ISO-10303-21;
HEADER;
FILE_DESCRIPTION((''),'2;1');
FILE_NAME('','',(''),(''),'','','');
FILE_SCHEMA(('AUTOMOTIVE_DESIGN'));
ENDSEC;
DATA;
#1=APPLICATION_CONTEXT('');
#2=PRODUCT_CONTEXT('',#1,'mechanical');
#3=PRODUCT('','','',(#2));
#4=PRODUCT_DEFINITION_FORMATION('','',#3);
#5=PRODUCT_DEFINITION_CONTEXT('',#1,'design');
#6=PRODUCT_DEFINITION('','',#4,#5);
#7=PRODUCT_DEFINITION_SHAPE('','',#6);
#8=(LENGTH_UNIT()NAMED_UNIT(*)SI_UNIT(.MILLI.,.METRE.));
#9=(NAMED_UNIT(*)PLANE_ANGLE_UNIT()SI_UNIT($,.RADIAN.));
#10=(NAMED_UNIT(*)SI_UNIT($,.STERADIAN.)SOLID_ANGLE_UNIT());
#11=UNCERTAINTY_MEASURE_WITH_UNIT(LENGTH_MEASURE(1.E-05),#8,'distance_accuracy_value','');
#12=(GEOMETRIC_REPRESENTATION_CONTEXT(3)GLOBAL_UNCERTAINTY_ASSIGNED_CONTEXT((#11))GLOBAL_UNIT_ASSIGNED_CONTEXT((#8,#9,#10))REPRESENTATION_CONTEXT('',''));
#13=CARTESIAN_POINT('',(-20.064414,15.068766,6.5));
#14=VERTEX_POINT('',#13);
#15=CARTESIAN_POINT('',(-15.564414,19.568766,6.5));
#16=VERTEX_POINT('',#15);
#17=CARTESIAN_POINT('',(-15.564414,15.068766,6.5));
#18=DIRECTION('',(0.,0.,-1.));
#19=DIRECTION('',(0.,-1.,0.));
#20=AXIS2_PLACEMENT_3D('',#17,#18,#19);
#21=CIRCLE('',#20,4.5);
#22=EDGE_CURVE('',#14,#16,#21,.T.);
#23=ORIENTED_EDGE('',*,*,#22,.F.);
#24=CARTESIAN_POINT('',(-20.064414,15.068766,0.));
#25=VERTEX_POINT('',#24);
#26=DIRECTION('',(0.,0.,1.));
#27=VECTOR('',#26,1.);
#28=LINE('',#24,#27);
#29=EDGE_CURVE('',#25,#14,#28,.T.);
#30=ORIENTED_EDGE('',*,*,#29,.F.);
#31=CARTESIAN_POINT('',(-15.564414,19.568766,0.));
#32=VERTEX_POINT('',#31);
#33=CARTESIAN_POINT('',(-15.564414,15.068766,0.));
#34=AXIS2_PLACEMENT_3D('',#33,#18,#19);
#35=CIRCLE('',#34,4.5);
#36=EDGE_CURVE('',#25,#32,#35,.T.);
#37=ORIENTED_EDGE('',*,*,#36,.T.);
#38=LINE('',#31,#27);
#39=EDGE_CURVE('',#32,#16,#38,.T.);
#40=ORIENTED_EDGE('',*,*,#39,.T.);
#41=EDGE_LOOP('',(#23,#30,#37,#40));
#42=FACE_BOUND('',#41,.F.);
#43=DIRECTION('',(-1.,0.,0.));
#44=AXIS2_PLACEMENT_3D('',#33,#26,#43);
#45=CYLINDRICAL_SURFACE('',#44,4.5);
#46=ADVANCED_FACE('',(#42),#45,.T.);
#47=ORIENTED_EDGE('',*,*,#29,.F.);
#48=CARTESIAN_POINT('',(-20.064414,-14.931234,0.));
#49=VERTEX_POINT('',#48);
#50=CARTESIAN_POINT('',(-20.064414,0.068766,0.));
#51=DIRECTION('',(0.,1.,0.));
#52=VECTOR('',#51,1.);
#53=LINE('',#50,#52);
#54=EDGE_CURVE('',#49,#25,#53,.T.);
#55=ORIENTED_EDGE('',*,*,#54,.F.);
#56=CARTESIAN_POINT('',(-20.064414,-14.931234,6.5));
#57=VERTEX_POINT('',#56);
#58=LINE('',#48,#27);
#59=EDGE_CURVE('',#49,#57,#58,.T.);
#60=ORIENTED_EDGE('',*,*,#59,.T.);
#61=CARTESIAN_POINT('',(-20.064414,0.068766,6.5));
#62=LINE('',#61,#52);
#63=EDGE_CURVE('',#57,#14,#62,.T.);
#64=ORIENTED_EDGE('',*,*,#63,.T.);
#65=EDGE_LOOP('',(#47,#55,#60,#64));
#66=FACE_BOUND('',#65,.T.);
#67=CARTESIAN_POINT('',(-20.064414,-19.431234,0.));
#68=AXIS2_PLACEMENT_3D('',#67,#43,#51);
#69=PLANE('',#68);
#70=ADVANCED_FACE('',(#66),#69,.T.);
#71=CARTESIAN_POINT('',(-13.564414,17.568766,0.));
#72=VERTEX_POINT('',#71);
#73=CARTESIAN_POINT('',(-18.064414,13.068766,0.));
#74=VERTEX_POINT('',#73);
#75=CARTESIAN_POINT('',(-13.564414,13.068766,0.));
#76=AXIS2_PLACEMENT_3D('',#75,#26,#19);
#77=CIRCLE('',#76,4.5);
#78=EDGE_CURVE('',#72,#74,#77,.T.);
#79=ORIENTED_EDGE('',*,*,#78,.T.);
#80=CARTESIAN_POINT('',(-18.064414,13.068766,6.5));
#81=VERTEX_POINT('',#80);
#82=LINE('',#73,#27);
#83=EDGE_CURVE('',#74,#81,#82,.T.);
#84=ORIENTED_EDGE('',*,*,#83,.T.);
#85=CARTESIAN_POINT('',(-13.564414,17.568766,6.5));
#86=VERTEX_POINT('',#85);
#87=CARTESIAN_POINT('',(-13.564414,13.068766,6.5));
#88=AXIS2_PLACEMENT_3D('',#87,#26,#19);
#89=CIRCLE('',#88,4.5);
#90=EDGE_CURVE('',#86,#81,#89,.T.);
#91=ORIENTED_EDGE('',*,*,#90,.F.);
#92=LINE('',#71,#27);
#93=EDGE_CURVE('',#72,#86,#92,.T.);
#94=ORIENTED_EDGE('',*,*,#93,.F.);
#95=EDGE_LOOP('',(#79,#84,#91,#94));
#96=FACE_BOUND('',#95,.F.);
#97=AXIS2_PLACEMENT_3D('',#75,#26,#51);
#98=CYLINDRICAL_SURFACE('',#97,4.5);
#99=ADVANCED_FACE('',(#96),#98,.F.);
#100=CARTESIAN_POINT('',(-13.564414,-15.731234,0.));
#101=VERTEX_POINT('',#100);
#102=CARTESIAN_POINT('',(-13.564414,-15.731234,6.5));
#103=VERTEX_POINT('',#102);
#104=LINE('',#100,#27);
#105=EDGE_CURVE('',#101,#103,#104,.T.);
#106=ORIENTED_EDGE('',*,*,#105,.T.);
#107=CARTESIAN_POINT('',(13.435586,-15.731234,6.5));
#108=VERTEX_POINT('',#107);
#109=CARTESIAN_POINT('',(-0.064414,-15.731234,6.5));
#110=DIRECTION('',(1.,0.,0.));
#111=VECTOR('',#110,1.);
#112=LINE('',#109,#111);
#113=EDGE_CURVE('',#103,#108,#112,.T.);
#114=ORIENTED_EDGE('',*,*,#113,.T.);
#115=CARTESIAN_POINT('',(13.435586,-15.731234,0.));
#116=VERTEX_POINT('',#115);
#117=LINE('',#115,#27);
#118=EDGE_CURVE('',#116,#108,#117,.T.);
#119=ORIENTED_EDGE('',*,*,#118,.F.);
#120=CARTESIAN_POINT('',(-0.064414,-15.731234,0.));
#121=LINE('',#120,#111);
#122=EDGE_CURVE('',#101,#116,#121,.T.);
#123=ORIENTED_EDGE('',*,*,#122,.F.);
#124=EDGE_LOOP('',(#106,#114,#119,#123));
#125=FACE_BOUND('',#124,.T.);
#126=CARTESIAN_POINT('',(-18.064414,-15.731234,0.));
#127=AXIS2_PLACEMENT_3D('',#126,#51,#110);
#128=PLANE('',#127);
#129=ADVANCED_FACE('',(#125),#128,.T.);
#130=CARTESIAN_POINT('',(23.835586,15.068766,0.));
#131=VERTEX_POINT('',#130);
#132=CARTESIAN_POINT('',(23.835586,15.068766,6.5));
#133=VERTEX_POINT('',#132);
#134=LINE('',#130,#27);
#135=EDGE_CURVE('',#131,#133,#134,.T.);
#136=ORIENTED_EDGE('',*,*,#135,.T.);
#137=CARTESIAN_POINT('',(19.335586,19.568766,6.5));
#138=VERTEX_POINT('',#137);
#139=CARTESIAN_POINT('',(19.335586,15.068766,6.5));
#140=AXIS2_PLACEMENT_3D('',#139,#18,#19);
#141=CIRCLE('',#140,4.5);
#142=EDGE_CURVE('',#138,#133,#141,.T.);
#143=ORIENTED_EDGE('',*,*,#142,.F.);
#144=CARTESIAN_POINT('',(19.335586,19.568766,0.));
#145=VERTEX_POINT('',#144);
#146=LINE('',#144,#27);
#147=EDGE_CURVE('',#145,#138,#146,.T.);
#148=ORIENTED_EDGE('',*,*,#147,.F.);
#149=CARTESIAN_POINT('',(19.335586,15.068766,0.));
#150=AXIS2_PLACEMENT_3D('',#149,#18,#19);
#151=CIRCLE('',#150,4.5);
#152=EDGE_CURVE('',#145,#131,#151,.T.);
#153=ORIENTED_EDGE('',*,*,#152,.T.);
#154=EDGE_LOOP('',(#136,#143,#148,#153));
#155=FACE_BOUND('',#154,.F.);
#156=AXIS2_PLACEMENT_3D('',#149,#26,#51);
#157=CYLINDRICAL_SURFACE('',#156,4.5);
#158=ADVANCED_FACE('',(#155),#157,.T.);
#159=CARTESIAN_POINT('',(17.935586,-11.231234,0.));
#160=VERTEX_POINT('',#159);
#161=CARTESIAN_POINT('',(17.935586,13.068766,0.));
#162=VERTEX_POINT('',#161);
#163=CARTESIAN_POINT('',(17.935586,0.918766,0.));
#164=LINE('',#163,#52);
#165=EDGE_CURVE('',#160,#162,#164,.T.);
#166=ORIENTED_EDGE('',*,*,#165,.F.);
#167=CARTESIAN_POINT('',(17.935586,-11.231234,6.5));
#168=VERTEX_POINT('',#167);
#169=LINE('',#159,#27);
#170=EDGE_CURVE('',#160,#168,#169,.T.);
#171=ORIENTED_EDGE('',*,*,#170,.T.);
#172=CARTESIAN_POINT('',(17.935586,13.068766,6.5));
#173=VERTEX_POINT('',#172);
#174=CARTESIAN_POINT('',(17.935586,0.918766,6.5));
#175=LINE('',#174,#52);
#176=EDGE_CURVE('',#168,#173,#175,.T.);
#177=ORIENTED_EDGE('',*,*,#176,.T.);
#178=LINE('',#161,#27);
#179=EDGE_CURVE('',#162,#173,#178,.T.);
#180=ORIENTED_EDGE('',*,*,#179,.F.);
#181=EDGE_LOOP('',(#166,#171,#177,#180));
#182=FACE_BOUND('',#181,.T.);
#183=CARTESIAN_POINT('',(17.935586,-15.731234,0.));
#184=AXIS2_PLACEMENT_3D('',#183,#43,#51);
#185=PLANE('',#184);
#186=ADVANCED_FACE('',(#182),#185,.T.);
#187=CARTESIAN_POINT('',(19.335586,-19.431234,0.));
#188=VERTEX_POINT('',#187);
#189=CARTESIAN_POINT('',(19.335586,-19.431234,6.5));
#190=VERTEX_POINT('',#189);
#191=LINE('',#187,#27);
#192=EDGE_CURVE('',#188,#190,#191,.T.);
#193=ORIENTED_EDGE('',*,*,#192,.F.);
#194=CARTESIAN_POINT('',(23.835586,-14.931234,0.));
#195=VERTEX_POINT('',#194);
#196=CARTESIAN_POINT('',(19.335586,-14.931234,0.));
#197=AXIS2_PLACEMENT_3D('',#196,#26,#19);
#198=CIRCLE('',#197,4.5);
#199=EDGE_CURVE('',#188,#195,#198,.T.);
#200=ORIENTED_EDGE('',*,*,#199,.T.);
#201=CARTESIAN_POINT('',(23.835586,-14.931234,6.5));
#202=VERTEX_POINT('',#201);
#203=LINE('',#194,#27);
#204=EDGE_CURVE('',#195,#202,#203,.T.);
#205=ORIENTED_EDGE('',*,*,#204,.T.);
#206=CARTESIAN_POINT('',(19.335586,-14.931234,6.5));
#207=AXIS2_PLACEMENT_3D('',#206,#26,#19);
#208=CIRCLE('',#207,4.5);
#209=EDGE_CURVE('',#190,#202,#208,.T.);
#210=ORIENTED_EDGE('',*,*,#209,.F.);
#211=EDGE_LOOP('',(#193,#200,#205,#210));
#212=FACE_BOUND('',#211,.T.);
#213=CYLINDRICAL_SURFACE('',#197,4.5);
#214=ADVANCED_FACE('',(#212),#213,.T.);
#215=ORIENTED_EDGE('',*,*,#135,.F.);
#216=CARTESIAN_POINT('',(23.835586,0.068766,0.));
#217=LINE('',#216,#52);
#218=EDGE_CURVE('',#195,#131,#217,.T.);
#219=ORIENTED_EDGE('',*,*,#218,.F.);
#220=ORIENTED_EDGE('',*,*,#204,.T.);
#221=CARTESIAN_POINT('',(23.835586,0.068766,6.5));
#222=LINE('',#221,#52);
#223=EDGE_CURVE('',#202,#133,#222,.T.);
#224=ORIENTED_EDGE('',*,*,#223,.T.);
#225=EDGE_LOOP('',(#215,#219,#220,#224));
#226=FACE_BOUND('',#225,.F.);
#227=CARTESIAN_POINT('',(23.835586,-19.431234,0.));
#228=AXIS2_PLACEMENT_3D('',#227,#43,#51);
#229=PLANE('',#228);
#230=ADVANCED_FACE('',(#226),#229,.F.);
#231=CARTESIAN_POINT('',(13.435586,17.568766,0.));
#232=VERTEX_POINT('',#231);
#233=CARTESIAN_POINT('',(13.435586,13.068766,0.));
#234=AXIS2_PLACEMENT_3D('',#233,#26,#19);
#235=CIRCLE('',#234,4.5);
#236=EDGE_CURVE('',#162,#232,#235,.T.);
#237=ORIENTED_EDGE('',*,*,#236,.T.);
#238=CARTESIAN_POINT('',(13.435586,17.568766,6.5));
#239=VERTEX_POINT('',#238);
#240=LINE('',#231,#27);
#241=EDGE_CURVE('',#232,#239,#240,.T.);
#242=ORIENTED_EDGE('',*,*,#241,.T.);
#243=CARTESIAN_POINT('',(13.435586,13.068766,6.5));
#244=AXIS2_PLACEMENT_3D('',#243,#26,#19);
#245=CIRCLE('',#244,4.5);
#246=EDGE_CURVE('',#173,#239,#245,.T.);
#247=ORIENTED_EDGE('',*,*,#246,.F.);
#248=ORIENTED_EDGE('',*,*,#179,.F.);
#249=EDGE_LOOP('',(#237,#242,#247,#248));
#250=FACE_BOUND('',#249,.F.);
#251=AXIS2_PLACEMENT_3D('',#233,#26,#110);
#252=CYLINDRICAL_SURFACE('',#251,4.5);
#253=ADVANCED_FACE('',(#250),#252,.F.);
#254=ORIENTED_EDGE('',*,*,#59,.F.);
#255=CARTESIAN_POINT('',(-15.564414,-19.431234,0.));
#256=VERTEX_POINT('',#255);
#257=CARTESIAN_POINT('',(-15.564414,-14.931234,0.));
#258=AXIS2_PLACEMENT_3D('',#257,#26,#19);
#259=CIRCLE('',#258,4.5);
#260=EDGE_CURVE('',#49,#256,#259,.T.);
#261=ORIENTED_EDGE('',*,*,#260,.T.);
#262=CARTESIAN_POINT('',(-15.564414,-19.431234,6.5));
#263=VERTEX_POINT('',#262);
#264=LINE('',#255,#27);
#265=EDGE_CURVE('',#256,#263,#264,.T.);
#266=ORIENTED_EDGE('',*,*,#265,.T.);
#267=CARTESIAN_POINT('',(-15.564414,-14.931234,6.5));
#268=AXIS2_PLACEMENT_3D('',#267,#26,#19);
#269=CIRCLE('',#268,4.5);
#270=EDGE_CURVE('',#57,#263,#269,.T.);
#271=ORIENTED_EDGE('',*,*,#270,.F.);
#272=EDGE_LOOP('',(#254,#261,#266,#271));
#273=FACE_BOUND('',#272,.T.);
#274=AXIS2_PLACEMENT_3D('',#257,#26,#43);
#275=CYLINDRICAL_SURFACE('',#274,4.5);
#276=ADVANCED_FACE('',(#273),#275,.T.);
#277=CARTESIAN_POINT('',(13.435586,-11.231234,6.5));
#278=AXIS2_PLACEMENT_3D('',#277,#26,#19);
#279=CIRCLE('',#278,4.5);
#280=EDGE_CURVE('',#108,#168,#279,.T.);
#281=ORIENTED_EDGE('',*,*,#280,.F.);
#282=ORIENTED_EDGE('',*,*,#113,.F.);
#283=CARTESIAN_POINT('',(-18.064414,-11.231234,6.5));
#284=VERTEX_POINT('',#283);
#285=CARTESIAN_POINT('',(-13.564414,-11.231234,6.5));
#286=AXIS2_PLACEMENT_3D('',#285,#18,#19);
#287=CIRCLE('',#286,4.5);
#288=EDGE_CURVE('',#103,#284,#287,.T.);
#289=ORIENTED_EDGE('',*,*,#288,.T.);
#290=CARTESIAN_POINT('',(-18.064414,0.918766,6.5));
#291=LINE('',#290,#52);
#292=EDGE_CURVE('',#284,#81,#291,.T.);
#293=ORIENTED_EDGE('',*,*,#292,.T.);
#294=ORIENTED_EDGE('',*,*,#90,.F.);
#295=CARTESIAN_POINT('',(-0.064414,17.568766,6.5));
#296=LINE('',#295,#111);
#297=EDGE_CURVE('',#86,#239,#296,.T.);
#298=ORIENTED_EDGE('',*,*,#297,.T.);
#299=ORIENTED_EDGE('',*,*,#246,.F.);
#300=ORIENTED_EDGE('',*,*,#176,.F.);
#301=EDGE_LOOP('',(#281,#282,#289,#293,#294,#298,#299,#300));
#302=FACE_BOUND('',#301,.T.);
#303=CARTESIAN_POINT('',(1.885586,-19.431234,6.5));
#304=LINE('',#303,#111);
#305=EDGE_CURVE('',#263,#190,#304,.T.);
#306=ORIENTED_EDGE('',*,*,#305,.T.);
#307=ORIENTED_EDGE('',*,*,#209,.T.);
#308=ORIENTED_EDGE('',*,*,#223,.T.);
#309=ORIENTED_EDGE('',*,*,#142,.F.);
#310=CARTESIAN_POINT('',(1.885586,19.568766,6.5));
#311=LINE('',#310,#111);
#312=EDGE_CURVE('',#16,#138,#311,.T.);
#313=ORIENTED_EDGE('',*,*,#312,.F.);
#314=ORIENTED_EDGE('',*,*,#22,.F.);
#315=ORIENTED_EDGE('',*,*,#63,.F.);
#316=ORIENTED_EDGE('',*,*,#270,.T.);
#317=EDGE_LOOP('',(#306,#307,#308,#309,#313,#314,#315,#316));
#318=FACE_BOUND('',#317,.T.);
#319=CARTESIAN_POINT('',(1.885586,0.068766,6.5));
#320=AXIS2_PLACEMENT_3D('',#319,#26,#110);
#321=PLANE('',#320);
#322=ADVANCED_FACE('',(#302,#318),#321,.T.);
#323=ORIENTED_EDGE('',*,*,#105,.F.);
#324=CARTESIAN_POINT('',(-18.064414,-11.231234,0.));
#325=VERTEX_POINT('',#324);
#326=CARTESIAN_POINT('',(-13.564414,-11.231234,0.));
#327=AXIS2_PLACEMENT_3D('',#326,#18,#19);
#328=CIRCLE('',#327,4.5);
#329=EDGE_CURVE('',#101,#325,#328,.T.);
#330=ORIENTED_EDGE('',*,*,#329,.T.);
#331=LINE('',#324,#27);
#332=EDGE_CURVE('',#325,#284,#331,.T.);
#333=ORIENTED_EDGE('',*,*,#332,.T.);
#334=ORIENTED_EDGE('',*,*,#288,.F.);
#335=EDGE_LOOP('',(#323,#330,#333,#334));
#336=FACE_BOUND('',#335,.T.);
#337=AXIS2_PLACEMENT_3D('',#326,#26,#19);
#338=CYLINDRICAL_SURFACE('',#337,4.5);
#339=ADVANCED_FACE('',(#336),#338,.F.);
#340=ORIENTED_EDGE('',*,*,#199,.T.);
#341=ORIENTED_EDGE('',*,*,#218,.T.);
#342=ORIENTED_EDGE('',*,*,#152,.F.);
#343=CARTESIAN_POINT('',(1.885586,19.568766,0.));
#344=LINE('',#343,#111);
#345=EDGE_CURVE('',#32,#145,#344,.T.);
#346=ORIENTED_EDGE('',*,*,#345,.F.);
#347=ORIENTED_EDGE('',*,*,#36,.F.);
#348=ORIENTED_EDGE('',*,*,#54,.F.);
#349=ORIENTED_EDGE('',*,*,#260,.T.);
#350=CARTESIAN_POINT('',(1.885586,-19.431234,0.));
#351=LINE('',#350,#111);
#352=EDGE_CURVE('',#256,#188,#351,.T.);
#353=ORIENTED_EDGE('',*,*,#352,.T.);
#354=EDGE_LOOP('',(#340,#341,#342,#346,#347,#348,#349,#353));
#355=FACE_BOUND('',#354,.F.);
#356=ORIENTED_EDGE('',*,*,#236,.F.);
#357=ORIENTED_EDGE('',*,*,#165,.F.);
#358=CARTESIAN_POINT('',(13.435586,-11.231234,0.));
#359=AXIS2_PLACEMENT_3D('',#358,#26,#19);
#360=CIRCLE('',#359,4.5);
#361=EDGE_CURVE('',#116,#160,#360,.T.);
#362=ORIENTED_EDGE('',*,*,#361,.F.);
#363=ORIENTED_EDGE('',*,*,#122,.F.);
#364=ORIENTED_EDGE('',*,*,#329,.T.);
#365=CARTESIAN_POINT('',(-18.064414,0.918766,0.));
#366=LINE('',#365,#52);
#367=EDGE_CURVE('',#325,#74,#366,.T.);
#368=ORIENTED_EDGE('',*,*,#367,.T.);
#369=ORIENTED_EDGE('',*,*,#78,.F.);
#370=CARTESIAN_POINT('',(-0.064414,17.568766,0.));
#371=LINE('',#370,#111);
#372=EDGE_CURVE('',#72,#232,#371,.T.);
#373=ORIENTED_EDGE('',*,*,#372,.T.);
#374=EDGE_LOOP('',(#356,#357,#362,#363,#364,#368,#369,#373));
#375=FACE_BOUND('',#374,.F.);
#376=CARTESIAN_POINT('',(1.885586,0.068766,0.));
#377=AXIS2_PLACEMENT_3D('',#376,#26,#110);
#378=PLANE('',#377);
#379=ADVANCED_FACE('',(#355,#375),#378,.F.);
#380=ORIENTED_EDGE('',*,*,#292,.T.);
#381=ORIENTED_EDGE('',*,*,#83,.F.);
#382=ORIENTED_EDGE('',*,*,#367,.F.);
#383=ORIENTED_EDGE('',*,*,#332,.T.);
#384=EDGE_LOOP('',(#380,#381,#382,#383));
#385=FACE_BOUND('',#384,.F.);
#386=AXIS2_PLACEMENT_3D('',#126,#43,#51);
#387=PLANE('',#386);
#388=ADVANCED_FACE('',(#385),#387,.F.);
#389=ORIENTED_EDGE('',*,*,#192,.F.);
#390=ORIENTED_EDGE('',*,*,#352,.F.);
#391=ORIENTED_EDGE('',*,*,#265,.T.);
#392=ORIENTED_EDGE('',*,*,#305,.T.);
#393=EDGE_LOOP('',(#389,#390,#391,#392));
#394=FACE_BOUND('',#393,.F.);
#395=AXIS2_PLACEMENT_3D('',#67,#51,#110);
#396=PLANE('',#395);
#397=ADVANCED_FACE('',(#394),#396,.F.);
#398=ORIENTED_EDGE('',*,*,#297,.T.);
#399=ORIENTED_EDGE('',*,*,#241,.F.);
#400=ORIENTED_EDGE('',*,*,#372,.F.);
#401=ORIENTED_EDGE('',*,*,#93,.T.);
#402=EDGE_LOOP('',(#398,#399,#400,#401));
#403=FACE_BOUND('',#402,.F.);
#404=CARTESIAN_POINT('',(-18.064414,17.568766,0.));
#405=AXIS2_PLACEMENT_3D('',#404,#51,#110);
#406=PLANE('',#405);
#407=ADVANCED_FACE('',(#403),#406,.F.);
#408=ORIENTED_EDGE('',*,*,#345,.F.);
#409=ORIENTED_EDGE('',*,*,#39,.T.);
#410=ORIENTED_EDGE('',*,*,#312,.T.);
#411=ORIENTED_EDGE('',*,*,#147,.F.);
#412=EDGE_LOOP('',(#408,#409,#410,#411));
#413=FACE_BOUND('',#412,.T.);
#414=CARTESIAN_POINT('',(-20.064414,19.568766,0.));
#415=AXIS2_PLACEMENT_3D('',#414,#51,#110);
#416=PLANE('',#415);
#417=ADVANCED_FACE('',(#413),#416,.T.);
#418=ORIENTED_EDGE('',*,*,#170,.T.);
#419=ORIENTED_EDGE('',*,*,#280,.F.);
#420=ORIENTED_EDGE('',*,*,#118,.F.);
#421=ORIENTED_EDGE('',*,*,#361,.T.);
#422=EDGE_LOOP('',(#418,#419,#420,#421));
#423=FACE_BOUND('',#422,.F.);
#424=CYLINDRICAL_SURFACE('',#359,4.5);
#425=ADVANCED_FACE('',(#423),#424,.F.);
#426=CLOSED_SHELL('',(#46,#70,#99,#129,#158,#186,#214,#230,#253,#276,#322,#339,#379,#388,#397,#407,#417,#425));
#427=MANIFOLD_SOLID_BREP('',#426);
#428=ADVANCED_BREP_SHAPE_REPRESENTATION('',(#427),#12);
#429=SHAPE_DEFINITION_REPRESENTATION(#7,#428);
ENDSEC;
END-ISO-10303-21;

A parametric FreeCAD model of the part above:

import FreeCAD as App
import Part
import Sketcher

V = App.Vector


def edges_at(feature, points):
    """Names of the edges that pass closest to the given points."""
    edges = feature.Shape.Edges
    near = lambda p: min(range(len(edges)), key=lambda i: edges[i].distToShape(Part.Vertex(*p))[0])
    return sorted({f"Edge{near(p) + 1}" for p in points})

doc = App.newDocument("Part")
body = doc.addObject("PartDesign::Body", "Body")

# Sketch on XY plane
sketch1 = body.newObject("Sketcher::SketchObject", "Sketch")
sketch1.AttachmentSupport = (doc.getObject("XY_Plane"), [""])
sketch1.MapMode = "FlatFace"
sketch1.addGeometry(Part.LineSegment(V(-20, 20, 0), V(-20, -19, 0)), False)
sketch1.addGeometry(Part.LineSegment(V(-20, -19, 0), V(24, -19, 0)), False)
sketch1.addGeometry(Part.LineSegment(V(24, -19, 0), V(24, 20, 0)), False)
sketch1.addGeometry(Part.LineSegment(V(24, 20, 0), V(-20, 20, 0)), False)
sketch1.addGeometry(Part.LineSegment(V(18, -16, 0), V(-18, -16, 0)), False)
sketch1.addGeometry(Part.LineSegment(V(-18, -16, 0), V(-18, 18, 0)), False)
sketch1.addGeometry(Part.LineSegment(V(-18, 18, 0), V(18, 18, 0)), False)
sketch1.addGeometry(Part.LineSegment(V(18, 18, 0), V(18, -16, 0)), False)
sketch1.addConstraint(Sketcher.Constraint("Coincident", 0, 2, 1, 1))
sketch1.addConstraint(Sketcher.Constraint("Coincident", 1, 2, 2, 1))
sketch1.addConstraint(Sketcher.Constraint("Coincident", 2, 2, 3, 1))
sketch1.addConstraint(Sketcher.Constraint("Coincident", 3, 2, 0, 1))
sketch1.addConstraint(Sketcher.Constraint("Coincident", 4, 2, 5, 1))
sketch1.addConstraint(Sketcher.Constraint("Coincident", 5, 2, 6, 1))
sketch1.addConstraint(Sketcher.Constraint("Coincident", 6, 2, 7, 1))
sketch1.addConstraint(Sketcher.Constraint("Coincident", 7, 2, 4, 1))
sketch1.addConstraint(Sketcher.Constraint("Vertical", 0))
sketch1.addConstraint(Sketcher.Constraint("Horizontal", 1))
sketch1.addConstraint(Sketcher.Constraint("Vertical", 2))
sketch1.addConstraint(Sketcher.Constraint("Horizontal", 3))
sketch1.addConstraint(Sketcher.Constraint("Horizontal", 4))
sketch1.addConstraint(Sketcher.Constraint("Vertical", 5))
sketch1.addConstraint(Sketcher.Constraint("Horizontal", 6))
sketch1.addConstraint(Sketcher.Constraint("Vertical", 7))
sketch1.addConstraint(Sketcher.Constraint("DistanceX", 4, 2, 4, 1, 36.0))
sketch1.addConstraint(Sketcher.Constraint("DistanceY", 0, 2, 0, 1, 39.0))
sketch1.addConstraint(Sketcher.Constraint("DistanceX", 1, 1, 1, 2, 43.9))
sketch1.addConstraint(Sketcher.Constraint("DistanceY", 5, 1, 5, 2, 33.3))
sketch1.addConstraint(Sketcher.Constraint("DistanceX", 0, 2, 4, 2, 2.0))
sketch1.addConstraint(Sketcher.Constraint("DistanceY", 5, 2, 3, 2, 2.0))
sketch1.addConstraint(Sketcher.Constraint("DistanceX", 0, 2, -1, 1, 20.064414))
sketch1.addConstraint(Sketcher.Constraint("DistanceY", 0, 2, -1, 1, 19.431234))
pad1 = body.newObject("PartDesign::Pad", "Pad")
pad1.Profile = sketch1
pad1.Length = 6.5
doc.recompute()

fillet = body.newObject("PartDesign::Fillet", "Fillet")
fillet.Base = (pad1, edges_at(pad1, [
    (-18.064, 17.569, 3.25),
    (-18.064, -15.731, 3.25),
    (17.936, -15.731, 3.25),
    (17.936, 17.569, 3.25),
    (23.836, -19.431, 3.25),
    (-20.064, -19.431, 3.25),
    (23.836, 19.569, 3.25),
    (-20.064, 19.569, 3.25),
]))
fillet.Radius = 4.5

doc.recompute()
